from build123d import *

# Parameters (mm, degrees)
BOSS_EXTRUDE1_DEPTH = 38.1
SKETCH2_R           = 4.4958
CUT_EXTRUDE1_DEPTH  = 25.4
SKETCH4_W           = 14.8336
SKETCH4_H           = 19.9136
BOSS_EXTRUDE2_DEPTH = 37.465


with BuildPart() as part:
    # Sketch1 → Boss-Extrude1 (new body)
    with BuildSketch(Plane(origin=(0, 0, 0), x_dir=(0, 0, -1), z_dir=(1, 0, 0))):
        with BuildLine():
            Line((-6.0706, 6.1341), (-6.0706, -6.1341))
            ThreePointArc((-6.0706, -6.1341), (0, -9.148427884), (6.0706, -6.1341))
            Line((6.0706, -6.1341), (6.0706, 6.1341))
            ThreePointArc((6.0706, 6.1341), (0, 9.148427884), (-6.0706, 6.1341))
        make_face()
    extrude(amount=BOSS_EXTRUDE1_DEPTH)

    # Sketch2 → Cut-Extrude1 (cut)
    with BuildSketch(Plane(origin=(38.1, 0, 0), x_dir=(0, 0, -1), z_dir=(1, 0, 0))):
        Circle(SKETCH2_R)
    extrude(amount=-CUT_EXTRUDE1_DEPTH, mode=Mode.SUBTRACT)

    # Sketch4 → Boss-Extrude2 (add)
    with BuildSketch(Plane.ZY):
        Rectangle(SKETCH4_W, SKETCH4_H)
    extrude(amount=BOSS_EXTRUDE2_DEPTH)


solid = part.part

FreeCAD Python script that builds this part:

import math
import FreeCAD as App
import Part
import Sketcher
from FreeCAD import Vector
Q = App.Units.Quantity


def add_polygon(sketch, points):
    """Adds a closed chain of lines whose ends are joined by coincident constraints."""
    first, n = sketch.GeometryCount, len(points)
    for a, b in zip(points, points[1:] + points[:1]):
        sketch.addGeometry(Part.LineSegment(App.Vector(*a, 0), App.Vector(*b, 0)), False)
    for i in range(n):
        sketch.addConstraint(Sketcher.Constraint("Coincident", first + i, 2, first + (i + 1) % n, 1))

doc = App.newDocument("Part")
body = doc.addObject("PartDesign::Body", "Body")

# Sketch on YZ plane
sketch1 = body.newObject("Sketcher::SketchObject", "Sketch")
sketch1.AttachmentSupport = (doc.getObject("YZ_Plane"), [""])
sketch1.MapMode = "FlatFace"
sketch1.addGeometry(Part.LineSegment(Vector(6.1341, 6.0706, 0), Vector(-6.1341, 6.0706, 0)), False)
sketch1.addGeometry(Part.ArcOfCircle(Part.Circle(Vector(-1.528428, 0, 0), Vector(0, 0, 1), 7.62), math.radians(127.187039), math.radians(232.812961)), False)
sketch1.addGeometry(Part.LineSegment(Vector(-6.1341, -6.0706, 0), Vector(6.1341, -6.0706, 0)), False)
sketch1.addGeometry(Part.ArcOfCircle(Part.Circle(Vector(1.528428, 0, 0), Vector(0, 0, 1), 7.62), math.radians(-52.812961), math.radians(52.812961)), False)
sketch1.addConstraint(Sketcher.Constraint("Coincident", 0, 2, 1, 1))
sketch1.addConstraint(Sketcher.Constraint("Coincident", 1, 2, 2, 1))
sketch1.addConstraint(Sketcher.Constraint("Coincident", 2, 2, 3, 1))
sketch1.addConstraint(Sketcher.Constraint("Coincident", 3, 2, 0, 1))
sketch1.addConstraint(Sketcher.Constraint("Horizontal", 0))
sketch1.addConstraint(Sketcher.Constraint("Horizontal", 2))
sketch1.addConstraint(Sketcher.Constraint("Equal", 1, 3))
sketch1.addConstraint(Sketcher.Constraint("Symmetric", 1, 3, 3, 3, -1, 1))
sketch1.addConstraint(Sketcher.Constraint("Symmetric", 0, 2, 1, 2, -1))
sketch1.addConstraint(Sketcher.Constraint("Radius", 1, Q("0.3 in")))
sketch1.addConstraint(Sketcher.Constraint("DistanceX", 0, 2, 0, 1, Q("0.483 in")))
sketch1.addConstraint(Sketcher.Constraint("DistanceY", -1, 1, 0, 2, Q("0.239 in")))
pad1 = body.newObject("PartDesign::Pad", "Pad")
pad1.Profile = sketch1
pad1.Length = Q("1.5 in")

# Sketch on YZ plane
sketch2 = body.newObject("Sketcher::SketchObject", "Sketch001")
sketch2.AttachmentSupport = (doc.getObject("YZ_Plane"), [""])
sketch2.MapMode = "FlatFace"
sketch2.AttachmentOffset = App.Placement(Vector(0, 0, 1.5 * 25.4), App.Rotation())
sketch2.addGeometry(Part.Circle(Vector(0, 0, 0), Vector(0, 0, 1), 4.4958), False)
sketch2.addConstraint(Sketcher.Constraint("Coincident", 0, 3, -1, 1))
sketch2.addConstraint(Sketcher.Constraint("Diameter", 0, Q("0.354 in")))
pocket1 = body.newObject("PartDesign::Pocket", "Pocket")
pocket1.Profile = sketch2
pocket1.Length = Q("1 in")

# Sketch on YZ plane
sketch3 = body.newObject("Sketcher::SketchObject", "Sketch002")
sketch3.AttachmentSupport = (doc.getObject("YZ_Plane"), [""])
sketch3.MapMode = "FlatFace"
add_polygon(sketch3, [(9.9568, -7.4168), (-9.9568, -7.4168), (-9.9568, 7.4168), (9.9568, 7.4168)])  # lines 0-3
sketch3.addConstraint(Sketcher.Constraint("Horizontal", 0))
sketch3.addConstraint(Sketcher.Constraint("Vertical", 1))
sketch3.addConstraint(Sketcher.Constraint("Horizontal", 2))
sketch3.addConstraint(Sketcher.Constraint("Vertical", 3))
sketch3.addConstraint(Sketcher.Constraint("Symmetric", 0, 2, 2, 2, -1, 1))
sketch3.addConstraint(Sketcher.Constraint("DistanceX", 0, 2, 0, 1, Q("0.784 in")))
sketch3.addConstraint(Sketcher.Constraint("DistanceY", 1, 1, 1, 2, Q("0.584 in")))
pad2 = body.newObject("PartDesign::Pad", "Pad001")
pad2.Profile = sketch3
pad2.Length = Q("1.475 in")
pad2.Reversed = True

doc.recompute()
